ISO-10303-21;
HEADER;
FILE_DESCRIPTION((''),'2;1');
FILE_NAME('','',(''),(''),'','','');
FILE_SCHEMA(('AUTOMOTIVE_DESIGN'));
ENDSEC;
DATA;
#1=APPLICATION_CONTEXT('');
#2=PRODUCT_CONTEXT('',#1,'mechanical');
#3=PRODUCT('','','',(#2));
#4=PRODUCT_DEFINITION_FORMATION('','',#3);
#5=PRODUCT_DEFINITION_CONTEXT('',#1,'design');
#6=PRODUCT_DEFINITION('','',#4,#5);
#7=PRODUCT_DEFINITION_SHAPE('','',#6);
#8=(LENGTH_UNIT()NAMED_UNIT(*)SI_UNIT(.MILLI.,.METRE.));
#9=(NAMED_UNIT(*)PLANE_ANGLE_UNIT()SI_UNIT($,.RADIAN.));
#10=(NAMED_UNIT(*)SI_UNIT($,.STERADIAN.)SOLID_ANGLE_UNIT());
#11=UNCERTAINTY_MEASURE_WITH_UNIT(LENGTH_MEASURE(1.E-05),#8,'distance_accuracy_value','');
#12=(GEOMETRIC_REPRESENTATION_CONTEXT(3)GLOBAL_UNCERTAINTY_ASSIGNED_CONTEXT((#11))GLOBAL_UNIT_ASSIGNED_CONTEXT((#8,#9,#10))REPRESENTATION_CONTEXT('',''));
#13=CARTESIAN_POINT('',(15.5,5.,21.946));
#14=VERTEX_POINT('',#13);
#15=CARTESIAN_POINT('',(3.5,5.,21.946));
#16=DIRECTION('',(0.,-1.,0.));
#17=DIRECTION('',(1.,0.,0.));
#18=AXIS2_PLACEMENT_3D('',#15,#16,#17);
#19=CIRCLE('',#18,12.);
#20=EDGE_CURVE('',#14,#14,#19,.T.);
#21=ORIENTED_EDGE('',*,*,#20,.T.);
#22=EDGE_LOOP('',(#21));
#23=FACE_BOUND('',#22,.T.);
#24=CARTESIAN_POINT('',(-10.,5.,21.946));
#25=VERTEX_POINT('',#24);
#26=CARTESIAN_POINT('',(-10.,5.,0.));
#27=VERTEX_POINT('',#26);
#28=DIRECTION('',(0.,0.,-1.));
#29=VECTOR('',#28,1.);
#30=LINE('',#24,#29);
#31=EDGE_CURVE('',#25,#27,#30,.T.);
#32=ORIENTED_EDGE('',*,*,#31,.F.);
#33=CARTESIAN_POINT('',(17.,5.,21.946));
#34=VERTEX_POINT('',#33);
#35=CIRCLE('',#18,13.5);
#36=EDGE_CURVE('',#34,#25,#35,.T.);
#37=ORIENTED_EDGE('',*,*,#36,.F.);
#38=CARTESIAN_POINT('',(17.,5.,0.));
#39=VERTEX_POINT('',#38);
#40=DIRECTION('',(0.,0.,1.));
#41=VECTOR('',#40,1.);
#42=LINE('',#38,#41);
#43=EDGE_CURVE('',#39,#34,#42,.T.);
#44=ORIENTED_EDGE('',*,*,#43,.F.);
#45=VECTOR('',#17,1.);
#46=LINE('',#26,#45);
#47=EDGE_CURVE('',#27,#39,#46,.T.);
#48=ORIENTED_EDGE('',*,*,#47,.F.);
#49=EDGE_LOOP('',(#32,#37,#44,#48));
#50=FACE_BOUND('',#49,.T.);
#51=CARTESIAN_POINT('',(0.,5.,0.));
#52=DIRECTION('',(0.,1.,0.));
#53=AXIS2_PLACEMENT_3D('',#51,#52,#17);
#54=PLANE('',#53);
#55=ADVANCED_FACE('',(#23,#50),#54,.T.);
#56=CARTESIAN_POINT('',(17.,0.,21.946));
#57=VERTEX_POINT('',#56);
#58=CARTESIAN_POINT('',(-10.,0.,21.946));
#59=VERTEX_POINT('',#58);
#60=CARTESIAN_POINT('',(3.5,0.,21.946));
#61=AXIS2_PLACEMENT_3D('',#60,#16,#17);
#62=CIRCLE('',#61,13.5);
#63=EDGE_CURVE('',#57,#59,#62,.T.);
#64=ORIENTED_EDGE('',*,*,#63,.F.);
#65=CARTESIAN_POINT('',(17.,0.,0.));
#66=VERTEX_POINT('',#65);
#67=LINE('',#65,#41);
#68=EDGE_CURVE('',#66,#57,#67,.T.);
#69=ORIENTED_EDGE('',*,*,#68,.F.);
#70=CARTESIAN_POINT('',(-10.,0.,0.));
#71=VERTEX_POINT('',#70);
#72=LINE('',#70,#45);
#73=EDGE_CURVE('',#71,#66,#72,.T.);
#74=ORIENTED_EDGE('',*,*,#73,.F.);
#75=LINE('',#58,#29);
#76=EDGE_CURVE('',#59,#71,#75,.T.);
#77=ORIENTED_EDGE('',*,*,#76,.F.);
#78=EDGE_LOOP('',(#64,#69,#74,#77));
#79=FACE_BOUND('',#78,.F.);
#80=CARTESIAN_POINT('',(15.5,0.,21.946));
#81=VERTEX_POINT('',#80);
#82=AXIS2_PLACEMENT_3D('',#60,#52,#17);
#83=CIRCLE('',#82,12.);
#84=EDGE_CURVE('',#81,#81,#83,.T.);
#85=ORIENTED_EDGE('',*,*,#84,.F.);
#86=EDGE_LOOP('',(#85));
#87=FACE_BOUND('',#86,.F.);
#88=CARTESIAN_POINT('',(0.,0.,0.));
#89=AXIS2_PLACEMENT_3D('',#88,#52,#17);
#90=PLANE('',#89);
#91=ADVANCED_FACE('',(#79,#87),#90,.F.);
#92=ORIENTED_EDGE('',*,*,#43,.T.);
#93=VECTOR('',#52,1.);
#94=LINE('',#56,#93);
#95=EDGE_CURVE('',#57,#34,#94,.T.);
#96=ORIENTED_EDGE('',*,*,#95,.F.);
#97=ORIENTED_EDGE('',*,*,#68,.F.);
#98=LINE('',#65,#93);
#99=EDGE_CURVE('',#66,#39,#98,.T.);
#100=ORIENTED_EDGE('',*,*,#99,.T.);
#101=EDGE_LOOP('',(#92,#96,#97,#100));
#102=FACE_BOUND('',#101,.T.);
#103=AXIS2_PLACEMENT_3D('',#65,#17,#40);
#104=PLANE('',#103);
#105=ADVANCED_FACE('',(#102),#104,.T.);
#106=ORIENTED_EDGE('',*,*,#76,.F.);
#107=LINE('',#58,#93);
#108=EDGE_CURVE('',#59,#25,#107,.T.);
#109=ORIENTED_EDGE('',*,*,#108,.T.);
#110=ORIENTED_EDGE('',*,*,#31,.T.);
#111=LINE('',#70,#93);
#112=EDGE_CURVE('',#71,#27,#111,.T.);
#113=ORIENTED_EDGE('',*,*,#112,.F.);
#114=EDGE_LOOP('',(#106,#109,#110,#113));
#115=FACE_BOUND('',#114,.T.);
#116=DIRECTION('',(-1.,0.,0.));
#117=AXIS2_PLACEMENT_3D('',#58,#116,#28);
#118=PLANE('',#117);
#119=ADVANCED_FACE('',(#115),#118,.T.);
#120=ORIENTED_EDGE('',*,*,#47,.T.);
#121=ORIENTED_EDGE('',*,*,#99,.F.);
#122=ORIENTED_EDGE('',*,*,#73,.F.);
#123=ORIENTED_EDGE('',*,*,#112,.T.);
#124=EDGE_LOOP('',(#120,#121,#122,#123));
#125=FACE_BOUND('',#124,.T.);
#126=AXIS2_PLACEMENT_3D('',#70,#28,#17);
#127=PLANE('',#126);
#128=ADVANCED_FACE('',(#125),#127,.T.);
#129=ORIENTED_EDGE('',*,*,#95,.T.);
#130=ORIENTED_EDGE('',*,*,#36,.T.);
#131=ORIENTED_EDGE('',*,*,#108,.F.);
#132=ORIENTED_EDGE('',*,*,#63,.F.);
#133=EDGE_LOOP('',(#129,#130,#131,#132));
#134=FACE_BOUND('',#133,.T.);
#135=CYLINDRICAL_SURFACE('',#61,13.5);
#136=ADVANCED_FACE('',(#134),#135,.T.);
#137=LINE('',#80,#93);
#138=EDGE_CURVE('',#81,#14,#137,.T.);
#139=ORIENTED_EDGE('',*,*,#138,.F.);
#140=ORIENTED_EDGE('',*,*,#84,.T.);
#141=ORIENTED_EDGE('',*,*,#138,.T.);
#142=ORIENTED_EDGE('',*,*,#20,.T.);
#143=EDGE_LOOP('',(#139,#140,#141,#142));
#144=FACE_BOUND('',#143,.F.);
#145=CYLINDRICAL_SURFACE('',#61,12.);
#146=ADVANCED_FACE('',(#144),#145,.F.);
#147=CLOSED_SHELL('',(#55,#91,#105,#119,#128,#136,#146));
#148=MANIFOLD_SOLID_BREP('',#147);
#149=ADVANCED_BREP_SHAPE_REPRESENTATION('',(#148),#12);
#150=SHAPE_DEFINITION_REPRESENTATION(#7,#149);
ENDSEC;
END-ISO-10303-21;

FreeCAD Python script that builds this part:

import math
import FreeCAD as App
import Part
import Sketcher
from FreeCAD import Vector
Q = App.Units.Quantity

doc = App.newDocument("Part")
body = doc.addObject("PartDesign::Body", "Body")

sketch1 = body.newObject("Sketcher::SketchObject", "Sketch")
sketch1.AttachmentSupport = (doc.getObject("XZ_Plane"), [""])
sketch1.MapMode = "FlatFace"
sketch1.addGeometry([
    Part.LineSegment(Vector(17, 0, 0), Vector(-10, 0, 0)),
    Part.LineSegment(Vector(-10, 0, 0), Vector(-10, 22, 0)),
    Part.LineSegment(Vector(-10, 22, 0), Vector(17, 22, 0)),
    Part.LineSegment(Vector(17, 22, 0), Vector(17, 0, 0)),
], False)
sketch1.addConstraint([
    Sketcher.Constraint("Coincident", 0, 2, 1, 1),
    Sketcher.Constraint("Coincident", 1, 2, 2, 1),
    Sketcher.Constraint("Coincident", 2, 2, 3, 1),
    Sketcher.Constraint("Coincident", 3, 2, 0, 1),
    Sketcher.Constraint("Horizontal", 0),
    Sketcher.Constraint("Vertical", 1),
    Sketcher.Constraint("Horizontal", 2),
    Sketcher.Constraint("Vertical", 3),
    Sketcher.Constraint("PointOnObject", 0, 2, -1),
    Sketcher.Constraint("DistanceX", 0, 2, 0, 1, Q("27 mm")),
    Sketcher.Constraint("DistanceX", 0, 2, -1, 1, Q("10 mm")),
    Sketcher.Constraint("DistanceY", 1, 1, 1, 2, Q("21.946 mm")),
])
pad1 = body.newObject("PartDesign::Pad", "Pad")
pad1.Profile = sketch1
pad1.Length = 5
pad1.Reversed = True

sketch2 = body.newObject("Sketcher::SketchObject", "Sketch001")
sketch2.AttachmentSupport = (doc.getObject("XZ_Plane"), [""])
sketch2.MapMode = "FlatFace"
sketch2.addGeometry([
    Part.LineSegment(Vector(15.5, 21.9, 0), Vector(17, 21.9, 0)),
    Part.ArcOfCircle(Part.Circle(Vector(3.5, 21.9, 0), Vector(0, 0, 1), 13.5), math.radians(0), math.radians(180)),
    Part.LineSegment(Vector(-10, 21.9, 0), Vector(-8.5, 21.9, 0)),
    Part.ArcOfCircle(Part.Circle(Vector(3.5, 21.9, 0), Vector(0, 0, 1), 12), math.radians(0), math.radians(180)),
], False)
sketch2.addConstraint([
    Sketcher.Constraint("Coincident", 0, 2, 1, 1),
    Sketcher.Constraint("Coincident", 1, 2, 2, 1),
    Sketcher.Constraint("Coincident", 2, 2, 3, 2),
    Sketcher.Constraint("Coincident", 3, 1, 0, 1),
    Sketcher.Constraint("Horizontal", 0),
    Sketcher.Constraint("Horizontal", 2),
    Sketcher.Constraint("Coincident", 3, 3, 1, 3),
    Sketcher.Constraint("Horizontal", 3, 3, 0, 2),
    Sketcher.Constraint("Horizontal", 0, 2, 1, 2),
    Sketcher.Constraint("Radius", 3, Q("12 mm")),
    Sketcher.Constraint("Radius", 1, Q("13.5 mm")),
    Sketcher.Constraint("DistanceX", -1, 1, 0, 2, Q("17 mm")),
    Sketcher.Constraint("DistanceY", -1, 1, 1, 3, Q("21.946 mm")),
])
pad2 = body.newObject("PartDesign::Pad", "Pad001")
pad2.Profile = sketch2
pad2.Length = 5
pad2.Reversed = True

sketch3 = body.newObject("Sketcher::SketchObject", "Sketch002")
sketch3.AttachmentSupport = (doc.getObject("XZ_Plane"), [""])
sketch3.MapMode = "FlatFace"
sketch3.addGeometry([
    Part.ArcOfCircle(Part.Circle(Vector(4, 22, 0), Vector(0, 0, 1), 12), math.radians(180), math.radians(360)),
    Part.LineSegment(Vector(16, 22, 0), Vector(-8, 22, 0)),
], False)
sketch3.addConstraint([
    Sketcher.Constraint("Coincident", 0, 1, 1, 2),
    Sketcher.Constraint("Coincident", 1, 1, 0, 2),
    Sketcher.Constraint("Horizontal", 1),
    Sketcher.Constraint("Radius", 0, Q("12 mm")),
    Sketcher.Constraint("DistanceX", -1, 1, 0, 3, Q("3.5 mm")),
    Sketcher.Constraint("DistanceY", -1, 1, 0, 3, Q("21.946 mm")),
    Sketcher.Constraint("DistanceY", -1, 1, 0, 1, Q("21.946 mm")),
])
pocket1 = body.newObject("PartDesign::Pocket", "Pocket")
pocket1.Profile = sketch3
pocket1.Length = 5

doc.recompute()
